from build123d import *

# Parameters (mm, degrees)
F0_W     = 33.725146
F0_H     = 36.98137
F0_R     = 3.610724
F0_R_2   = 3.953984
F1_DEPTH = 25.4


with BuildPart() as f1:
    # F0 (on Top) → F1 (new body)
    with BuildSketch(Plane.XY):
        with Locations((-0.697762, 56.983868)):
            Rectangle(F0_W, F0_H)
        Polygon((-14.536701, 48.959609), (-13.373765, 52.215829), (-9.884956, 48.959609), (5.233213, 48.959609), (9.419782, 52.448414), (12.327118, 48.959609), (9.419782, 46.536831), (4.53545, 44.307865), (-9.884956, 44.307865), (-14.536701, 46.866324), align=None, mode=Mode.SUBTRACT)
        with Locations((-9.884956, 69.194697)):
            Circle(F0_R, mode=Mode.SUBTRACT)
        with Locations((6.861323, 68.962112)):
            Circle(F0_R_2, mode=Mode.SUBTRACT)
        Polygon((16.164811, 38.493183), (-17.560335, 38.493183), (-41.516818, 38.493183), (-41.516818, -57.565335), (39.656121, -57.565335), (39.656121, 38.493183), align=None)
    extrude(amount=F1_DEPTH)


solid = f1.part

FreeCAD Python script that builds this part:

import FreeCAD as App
import Part
import Sketcher
Q = App.Units.Quantity

doc = App.newDocument("Part")
body = doc.addObject("PartDesign::Body", "Body")

sketch1 = body.newObject("Sketcher::SketchObject", "Sketch")
sketch1.AttachmentSupport = (doc.getObject("XY_Plane"), [""])
sketch1.MapMode = "FlatFace"
sketch1.addGeometry([
    Part.LineSegment(App.Vector(-17.560335, 75.474553, 0), App.Vector(-17.560335, 38.493183, 0)),
    Part.LineSegment(App.Vector(-17.560335, 38.493183, 0), App.Vector(-41.516818, 38.493183, 0)),
    Part.LineSegment(App.Vector(-41.516818, 38.493183, 0), App.Vector(-41.516818, -57.565335, 0)),
    Part.LineSegment(App.Vector(-41.516818, -57.565335, 0), App.Vector(39.656121, -57.565335, 0)),
    Part.LineSegment(App.Vector(39.656121, -57.565335, 0), App.Vector(39.656121, 38.493183, 0)),
    Part.LineSegment(App.Vector(39.656121, 38.493183, 0), App.Vector(16.164811, 38.493183, 0)),
    Part.LineSegment(App.Vector(16.164811, 38.493183, 0), App.Vector(16.164811, 75.474553, 0)),
    Part.LineSegment(App.Vector(16.164811, 75.474553, 0), App.Vector(-17.560335, 75.474553, 0)),
    Part.LineSegment(App.Vector(-14.536701, 46.866324, 0), App.Vector(-14.536701, 48.959609, 0)),
    Part.LineSegment(App.Vector(-14.536701, 48.959609, 0), App.Vector(-13.373765, 52.215829, 0)),
    Part.LineSegment(App.Vector(-13.373765, 52.215829, 0), App.Vector(-9.884956, 48.959609, 0)),
    Part.LineSegment(App.Vector(-9.884956, 48.959609, 0), App.Vector(5.233213, 48.959609, 0)),
    Part.LineSegment(App.Vector(5.233213, 48.959609, 0), App.Vector(9.419782, 52.448414, 0)),
    Part.LineSegment(App.Vector(9.419782, 52.448414, 0), App.Vector(12.327118, 48.959609, 0)),
    Part.LineSegment(App.Vector(12.327118, 48.959609, 0), App.Vector(9.419782, 46.536831, 0)),
    Part.LineSegment(App.Vector(9.419782, 46.536831, 0), App.Vector(4.53545, 44.307865, 0)),
    Part.LineSegment(App.Vector(4.53545, 44.307865, 0), App.Vector(-9.884956, 44.307865, 0)),
    Part.LineSegment(App.Vector(-9.884956, 44.307865, 0), App.Vector(-14.536701, 46.866324, 0)),
    Part.Circle(App.Vector(-9.884956, 69.194697, 0), App.Vector(0, 0, 1), 3.610724),
    Part.Circle(App.Vector(6.861323, 68.962112, 0), App.Vector(0, 0, 1), 3.953984),
], False)
sketch1.addConstraint([
    Sketcher.Constraint("Coincident", 0, 2, 1, 1),
    Sketcher.Constraint("Coincident", 1, 2, 2, 1),
    Sketcher.Constraint("Coincident", 2, 2, 3, 1),
    Sketcher.Constraint("Coincident", 3, 2, 4, 1),
    Sketcher.Constraint("Coincident", 4, 2, 5, 1),
    Sketcher.Constraint("Coincident", 5, 2, 6, 1),
    Sketcher.Constraint("Coincident", 6, 2, 7, 1),
    Sketcher.Constraint("Coincident", 7, 2, 0, 1),
    Sketcher.Constraint("Coincident", 8, 2, 9, 1),
    Sketcher.Constraint("Coincident", 9, 2, 10, 1),
    Sketcher.Constraint("Coincident", 10, 2, 11, 1),
    Sketcher.Constraint("Coincident", 11, 2, 12, 1),
    Sketcher.Constraint("Coincident", 12, 2, 13, 1),
    Sketcher.Constraint("Coincident", 13, 2, 14, 1),
    Sketcher.Constraint("Coincident", 14, 2, 15, 1),
    Sketcher.Constraint("Coincident", 15, 2, 16, 1),
    Sketcher.Constraint("Coincident", 16, 2, 17, 1),
    Sketcher.Constraint("Coincident", 17, 2, 8, 1),
    Sketcher.Constraint("Vertical", 0),
    Sketcher.Constraint("Horizontal", 1),
    Sketcher.Constraint("Vertical", 2),
    Sketcher.Constraint("Horizontal", 3),
    Sketcher.Constraint("Vertical", 4),
    Sketcher.Constraint("Horizontal", 5),
    Sketcher.Constraint("Vertical", 6),
    Sketcher.Constraint("Horizontal", 7),
    Sketcher.Constraint("Vertical", 8),
    Sketcher.Constraint("Horizontal", 11),
    Sketcher.Constraint("Horizontal", 16),
    Sketcher.Constraint("Perpendicular", 12, 13),
    Sketcher.Constraint("Perpendicular", 13, 14),
    Sketcher.Constraint("Horizontal", 1, 2, 4, 2),
    Sketcher.Constraint("Horizontal", 8, 2, 10, 2),
    Sketcher.Constraint("Horizontal", 11, 2, 13, 2),
    Sketcher.Constraint("Vertical", 18, 3, 10, 2),
    Sketcher.Constraint("Vertical", 12, 2, 14, 2),
    Sketcher.Constraint("Vertical", 10, 2, 16, 2),
    Sketcher.Constraint("Diameter", 19, Q("7.907968 mm")),
    Sketcher.Constraint("Diameter", 18, Q("7.221448 mm")),
    Sketcher.Constraint("DistanceY", 8, 2, 19, 3, Q("0.7875001 in")),
    Sketcher.Constraint("DistanceX", 3, 1, 3, 2, Q("81.172939 mm")),
    Sketcher.Constraint("DistanceX", 5, 2, 5, 1, Q("23.49131 mm")),
    Sketcher.Constraint("DistanceX", 11, 1, 11, 2, Q("15.118169 mm")),
    Sketcher.Constraint("DistanceY", 0, 2, 0, 1, Q("36.98137 mm")),
    Sketcher.Constraint("DistanceX", 8, 2, -1, 1, Q("14.536701 mm")),
    Sketcher.Constraint("DistanceX", 11, 2, 5, 2, Q("10.931598 mm")),
    Sketcher.Constraint("DistanceY", 12, 2, 19, 3, Q("16.513698 mm")),
    Sketcher.Constraint("Distance", 10, Q("4.772291 mm")),
    Sketcher.Constraint("Distance", 12, Q("5.44969 mm")),
    Sketcher.Constraint("Distance", 15, Q("5.368891 mm")),
    Sketcher.Constraint("DistanceX", 1, 2, 1, 1, Q("23.956483 mm")),
    Sketcher.Constraint("DistanceX", 16, 2, 16, 1, Q("14.420406 mm")),
    Sketcher.Constraint("DistanceY", 2, 2, 2, 1, Q("96.058518 mm")),
    Sketcher.Constraint("DistanceY", 8, 1, 8, 2, Q("2.093285 mm")),
    Sketcher.Constraint("DistanceX", -1, 1, 3, 2, Q("39.656121 mm")),
    Sketcher.Constraint("DistanceY", -1, 1, 8, 2, Q("48.959609 mm")),
    Sketcher.Constraint("DistanceY", -1, 1, 9, 2, Q("52.215829 mm")),
    Sketcher.Constraint("DistanceX", 18, 3, 19, 3, Q("16.746279 mm")),
    Sketcher.Constraint("DistanceY", 0, 2, 19, 3, Q("30.468929 mm")),
    Sketcher.Constraint("DistanceY", 2, 2, 18, 3, Q("126.760032 mm")),
])
pad1 = body.newObject("PartDesign::Pad", "Pad")
pad1.Profile = sketch1
pad1.Length = Q("1 in")

doc.recompute()
